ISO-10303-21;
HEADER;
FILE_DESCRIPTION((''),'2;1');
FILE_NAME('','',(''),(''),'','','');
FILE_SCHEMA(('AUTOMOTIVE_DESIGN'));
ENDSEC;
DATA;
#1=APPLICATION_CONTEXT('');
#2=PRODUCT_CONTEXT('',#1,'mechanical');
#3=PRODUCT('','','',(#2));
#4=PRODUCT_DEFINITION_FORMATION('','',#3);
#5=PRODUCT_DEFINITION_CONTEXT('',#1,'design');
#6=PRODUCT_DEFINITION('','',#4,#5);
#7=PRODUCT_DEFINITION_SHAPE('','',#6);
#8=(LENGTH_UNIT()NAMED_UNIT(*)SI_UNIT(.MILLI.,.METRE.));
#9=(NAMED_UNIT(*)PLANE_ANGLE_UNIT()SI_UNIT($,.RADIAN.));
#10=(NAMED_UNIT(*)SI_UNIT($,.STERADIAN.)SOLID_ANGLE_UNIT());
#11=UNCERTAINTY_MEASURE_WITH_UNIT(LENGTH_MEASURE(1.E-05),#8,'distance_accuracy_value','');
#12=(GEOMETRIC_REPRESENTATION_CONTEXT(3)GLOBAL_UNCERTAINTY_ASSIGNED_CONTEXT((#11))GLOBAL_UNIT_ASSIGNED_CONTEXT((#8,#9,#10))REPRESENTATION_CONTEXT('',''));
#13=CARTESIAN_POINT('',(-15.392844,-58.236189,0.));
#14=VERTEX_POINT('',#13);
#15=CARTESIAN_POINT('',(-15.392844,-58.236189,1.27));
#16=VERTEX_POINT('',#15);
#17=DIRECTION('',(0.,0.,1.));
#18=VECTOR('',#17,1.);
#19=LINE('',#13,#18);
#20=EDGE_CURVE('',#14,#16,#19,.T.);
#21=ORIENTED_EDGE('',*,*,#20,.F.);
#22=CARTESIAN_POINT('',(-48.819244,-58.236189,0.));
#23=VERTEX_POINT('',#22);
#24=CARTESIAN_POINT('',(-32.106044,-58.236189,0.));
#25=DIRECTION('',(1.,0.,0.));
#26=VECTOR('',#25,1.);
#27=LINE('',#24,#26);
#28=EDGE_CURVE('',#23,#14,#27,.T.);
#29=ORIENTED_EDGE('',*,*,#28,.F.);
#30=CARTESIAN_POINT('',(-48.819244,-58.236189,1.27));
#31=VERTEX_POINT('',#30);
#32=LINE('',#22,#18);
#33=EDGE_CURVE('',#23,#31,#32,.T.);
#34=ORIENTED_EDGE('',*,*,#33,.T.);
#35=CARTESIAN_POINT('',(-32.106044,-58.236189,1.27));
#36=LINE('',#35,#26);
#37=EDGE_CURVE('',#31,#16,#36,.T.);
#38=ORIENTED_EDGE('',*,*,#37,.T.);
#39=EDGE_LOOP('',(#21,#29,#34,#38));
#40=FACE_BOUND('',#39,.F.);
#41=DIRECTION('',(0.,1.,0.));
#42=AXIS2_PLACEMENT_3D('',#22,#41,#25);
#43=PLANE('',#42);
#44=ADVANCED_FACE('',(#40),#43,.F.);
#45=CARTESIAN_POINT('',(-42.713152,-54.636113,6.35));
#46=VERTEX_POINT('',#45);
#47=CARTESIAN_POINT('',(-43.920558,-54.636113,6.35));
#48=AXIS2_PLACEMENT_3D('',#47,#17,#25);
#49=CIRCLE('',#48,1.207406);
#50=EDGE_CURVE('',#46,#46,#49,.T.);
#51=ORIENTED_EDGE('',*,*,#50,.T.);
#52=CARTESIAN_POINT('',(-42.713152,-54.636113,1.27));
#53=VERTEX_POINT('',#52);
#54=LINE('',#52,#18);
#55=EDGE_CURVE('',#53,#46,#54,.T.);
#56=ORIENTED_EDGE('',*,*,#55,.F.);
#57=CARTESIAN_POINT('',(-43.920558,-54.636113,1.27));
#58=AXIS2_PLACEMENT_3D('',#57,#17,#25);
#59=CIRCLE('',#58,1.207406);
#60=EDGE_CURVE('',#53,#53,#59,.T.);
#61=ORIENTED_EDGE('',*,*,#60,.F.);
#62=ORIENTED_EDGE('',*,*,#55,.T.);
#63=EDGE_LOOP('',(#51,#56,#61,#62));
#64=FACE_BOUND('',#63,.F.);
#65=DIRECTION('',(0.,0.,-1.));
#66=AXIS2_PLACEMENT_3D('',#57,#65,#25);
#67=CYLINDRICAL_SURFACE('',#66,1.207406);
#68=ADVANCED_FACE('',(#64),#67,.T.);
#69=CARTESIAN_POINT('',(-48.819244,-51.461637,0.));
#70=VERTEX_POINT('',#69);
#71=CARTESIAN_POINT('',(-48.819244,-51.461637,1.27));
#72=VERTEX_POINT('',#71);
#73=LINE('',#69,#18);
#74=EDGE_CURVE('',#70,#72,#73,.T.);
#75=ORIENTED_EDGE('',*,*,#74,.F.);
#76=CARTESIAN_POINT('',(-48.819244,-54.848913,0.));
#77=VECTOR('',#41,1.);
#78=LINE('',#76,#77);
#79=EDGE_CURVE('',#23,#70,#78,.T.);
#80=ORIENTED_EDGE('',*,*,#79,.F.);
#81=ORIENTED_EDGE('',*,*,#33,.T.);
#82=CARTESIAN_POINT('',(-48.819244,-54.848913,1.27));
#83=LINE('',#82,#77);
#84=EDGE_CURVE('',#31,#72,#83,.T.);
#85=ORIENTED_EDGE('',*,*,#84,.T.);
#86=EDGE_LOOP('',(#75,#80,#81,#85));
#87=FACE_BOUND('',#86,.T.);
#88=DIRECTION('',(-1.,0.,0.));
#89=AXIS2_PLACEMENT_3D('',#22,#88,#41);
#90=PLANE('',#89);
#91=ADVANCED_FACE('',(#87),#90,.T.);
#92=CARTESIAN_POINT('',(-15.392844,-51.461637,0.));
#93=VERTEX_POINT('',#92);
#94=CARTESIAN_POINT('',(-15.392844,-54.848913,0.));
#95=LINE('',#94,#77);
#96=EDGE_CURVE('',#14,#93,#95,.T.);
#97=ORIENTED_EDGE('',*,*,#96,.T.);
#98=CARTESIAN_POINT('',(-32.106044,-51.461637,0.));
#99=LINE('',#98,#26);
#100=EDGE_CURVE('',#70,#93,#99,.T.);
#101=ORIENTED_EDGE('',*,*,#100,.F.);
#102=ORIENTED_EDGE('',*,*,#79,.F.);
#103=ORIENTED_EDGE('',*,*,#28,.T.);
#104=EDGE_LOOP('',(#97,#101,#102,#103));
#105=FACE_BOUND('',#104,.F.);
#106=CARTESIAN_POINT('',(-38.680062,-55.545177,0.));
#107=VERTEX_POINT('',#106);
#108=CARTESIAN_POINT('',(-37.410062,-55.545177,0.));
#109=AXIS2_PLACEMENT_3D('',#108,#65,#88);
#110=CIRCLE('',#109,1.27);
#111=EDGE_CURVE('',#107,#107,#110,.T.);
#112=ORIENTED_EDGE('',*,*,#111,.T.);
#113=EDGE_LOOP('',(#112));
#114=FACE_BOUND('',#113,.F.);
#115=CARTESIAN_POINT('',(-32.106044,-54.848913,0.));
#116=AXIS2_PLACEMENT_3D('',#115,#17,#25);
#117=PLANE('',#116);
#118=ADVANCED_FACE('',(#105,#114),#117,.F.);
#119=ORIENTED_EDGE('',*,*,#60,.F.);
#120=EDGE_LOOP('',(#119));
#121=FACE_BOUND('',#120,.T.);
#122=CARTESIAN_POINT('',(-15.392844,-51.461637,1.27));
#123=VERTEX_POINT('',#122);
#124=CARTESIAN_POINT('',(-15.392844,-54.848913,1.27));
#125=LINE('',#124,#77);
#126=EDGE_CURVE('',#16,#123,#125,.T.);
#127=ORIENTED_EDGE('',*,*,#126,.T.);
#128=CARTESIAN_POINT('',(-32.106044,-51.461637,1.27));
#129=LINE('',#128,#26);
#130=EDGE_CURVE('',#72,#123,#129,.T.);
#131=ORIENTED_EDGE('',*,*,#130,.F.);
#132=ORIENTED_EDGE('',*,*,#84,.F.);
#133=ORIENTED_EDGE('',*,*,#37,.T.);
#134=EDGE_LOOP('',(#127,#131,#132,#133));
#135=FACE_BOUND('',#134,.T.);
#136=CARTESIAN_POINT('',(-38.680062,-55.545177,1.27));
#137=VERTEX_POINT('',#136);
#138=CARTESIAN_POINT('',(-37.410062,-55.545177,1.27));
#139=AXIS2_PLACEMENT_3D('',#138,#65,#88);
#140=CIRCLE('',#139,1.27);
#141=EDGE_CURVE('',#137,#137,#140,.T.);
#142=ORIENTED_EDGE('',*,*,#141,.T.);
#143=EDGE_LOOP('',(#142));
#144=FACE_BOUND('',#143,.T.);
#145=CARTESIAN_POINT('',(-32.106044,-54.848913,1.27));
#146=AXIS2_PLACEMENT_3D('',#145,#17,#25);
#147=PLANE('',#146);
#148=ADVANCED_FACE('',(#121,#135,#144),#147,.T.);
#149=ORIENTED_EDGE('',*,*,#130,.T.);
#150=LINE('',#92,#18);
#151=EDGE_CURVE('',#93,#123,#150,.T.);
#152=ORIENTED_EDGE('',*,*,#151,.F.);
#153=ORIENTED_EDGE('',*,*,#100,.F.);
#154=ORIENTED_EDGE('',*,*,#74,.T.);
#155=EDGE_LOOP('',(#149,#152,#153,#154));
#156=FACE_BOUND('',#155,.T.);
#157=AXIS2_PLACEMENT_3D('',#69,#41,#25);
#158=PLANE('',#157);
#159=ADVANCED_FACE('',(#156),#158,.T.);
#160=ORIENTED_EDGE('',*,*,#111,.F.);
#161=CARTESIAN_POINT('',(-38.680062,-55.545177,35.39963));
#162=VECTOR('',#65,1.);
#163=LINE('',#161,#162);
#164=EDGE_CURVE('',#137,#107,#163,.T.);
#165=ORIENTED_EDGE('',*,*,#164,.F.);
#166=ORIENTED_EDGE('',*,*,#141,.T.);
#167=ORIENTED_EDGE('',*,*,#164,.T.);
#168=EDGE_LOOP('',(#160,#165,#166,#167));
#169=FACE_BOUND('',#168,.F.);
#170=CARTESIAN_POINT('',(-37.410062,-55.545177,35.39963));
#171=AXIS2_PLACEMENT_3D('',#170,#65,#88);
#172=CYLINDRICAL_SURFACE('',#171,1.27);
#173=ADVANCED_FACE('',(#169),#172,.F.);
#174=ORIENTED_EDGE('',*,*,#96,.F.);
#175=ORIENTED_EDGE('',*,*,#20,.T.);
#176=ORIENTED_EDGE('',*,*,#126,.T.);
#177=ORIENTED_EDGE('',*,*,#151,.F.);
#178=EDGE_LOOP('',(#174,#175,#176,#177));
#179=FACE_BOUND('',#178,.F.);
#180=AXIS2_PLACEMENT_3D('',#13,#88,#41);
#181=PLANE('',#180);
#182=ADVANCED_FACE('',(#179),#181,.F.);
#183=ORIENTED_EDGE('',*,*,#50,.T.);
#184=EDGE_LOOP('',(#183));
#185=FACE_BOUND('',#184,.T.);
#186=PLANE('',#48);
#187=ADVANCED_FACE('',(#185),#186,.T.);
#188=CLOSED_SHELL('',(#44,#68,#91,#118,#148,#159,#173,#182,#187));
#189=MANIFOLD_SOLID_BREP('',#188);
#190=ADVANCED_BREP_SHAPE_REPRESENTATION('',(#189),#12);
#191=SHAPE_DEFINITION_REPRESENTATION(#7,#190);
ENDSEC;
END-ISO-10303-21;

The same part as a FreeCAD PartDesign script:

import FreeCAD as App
import Part
import Sketcher
Q = App.Units.Quantity

doc = App.newDocument("Part")
body = doc.addObject("PartDesign::Body", "Body")

# Sketch on XY plane
sketch1 = body.newObject("Sketcher::SketchObject", "Sketch")
sketch1.AttachmentSupport = (doc.getObject("XY_Plane"), [""])
sketch1.MapMode = "FlatFace"
sketch1.addGeometry(Part.LineSegment(App.Vector(-49, -51, 0), App.Vector(-49, -58, 0)), False)
sketch1.addGeometry(Part.LineSegment(App.Vector(-49, -58, 0), App.Vector(-15, -58, 0)), False)
sketch1.addGeometry(Part.LineSegment(App.Vector(-15, -58, 0), App.Vector(-15, -51, 0)), False)
sketch1.addGeometry(Part.LineSegment(App.Vector(-15, -51, 0), App.Vector(-49, -51, 0)), False)
sketch1.addConstraint(Sketcher.Constraint("Coincident", 0, 2, 1, 1))
sketch1.addConstraint(Sketcher.Constraint("Coincident", 1, 2, 2, 1))
sketch1.addConstraint(Sketcher.Constraint("Coincident", 2, 2, 3, 1))
sketch1.addConstraint(Sketcher.Constraint("Coincident", 3, 2, 0, 1))
sketch1.addConstraint(Sketcher.Constraint("Vertical", 0))
sketch1.addConstraint(Sketcher.Constraint("Horizontal", 1))
sketch1.addConstraint(Sketcher.Constraint("Vertical", 2))
sketch1.addConstraint(Sketcher.Constraint("Horizontal", 3))
sketch1.addConstraint(Sketcher.Constraint("DistanceX", 1, 1, 1, 2, Q("1.316 in")))
sketch1.addConstraint(Sketcher.Constraint("DistanceY", 0, 2, 0, 1, Q("6.774552 mm")))
sketch1.addConstraint(Sketcher.Constraint("DistanceY", 0, 2, -1, 1, Q("58.236189 mm")))
sketch1.addConstraint(Sketcher.Constraint("DistanceX", 0, 2, -1, 1, Q("48.819244 mm")))
pad1 = body.newObject("PartDesign::Pad", "Pad")
pad1.Profile = sketch1
pad1.Length = Q("0.05 in")

# Sketch on XY plane
sketch2 = body.newObject("Sketcher::SketchObject", "Sketch001")
sketch2.AttachmentSupport = (doc.getObject("XY_Plane"), [""])
sketch2.MapMode = "FlatFace"
sketch2.AttachmentOffset = App.Placement(App.Vector(0, 0, 0.05 * 25.4), App.Rotation())
sketch2.addGeometry(Part.Circle(App.Vector(-37.4, -55.5, 0), App.Vector(0, 0, 1), 1.3), False)
sketch2.addConstraint(Sketcher.Constraint("Diameter", 0, Q("0.1 in")))
sketch2.addConstraint(Sketcher.Constraint("DistanceX", 0, 3, -1, 1, Q("37.410062 mm")))
sketch2.addConstraint(Sketcher.Constraint("DistanceY", 0, 3, -1, 1, Q("55.545177 mm")))
doc.recompute()
hole = body.newObject("PartDesign::Hole", "Hole")
hole.Profile = sketch2
hole.ThreadType = "None"
hole.Diameter = Q("0.1 in")
hole.DepthType = "ThroughAll"

# Sketch on XY plane
sketch3 = body.newObject("Sketcher::SketchObject", "Sketch002")
sketch3.AttachmentSupport = (doc.getObject("XY_Plane"), [""])
sketch3.MapMode = "FlatFace"
sketch3.AttachmentOffset = App.Placement(App.Vector(0, 0, 0.05 * 25.4), App.Rotation())
sketch3.addGeometry(Part.Circle(App.Vector(-43.9, -54.6, 0), App.Vector(0, 0, 1), 1.2), False)
sketch3.addConstraint(Sketcher.Constraint("Diameter", 0, Q("2.414812 mm")))
sketch3.addConstraint(Sketcher.Constraint("DistanceX", 0, 3, -1, 1, Q("43.920558 mm")))
sketch3.addConstraint(Sketcher.Constraint("DistanceY", 0, 3, -1, 1, Q("54.636113 mm")))
pad2 = body.newObject("PartDesign::Pad", "Pad001")
pad2.Profile = sketch3
pad2.Length = Q("0.2 in")
body2 = doc.addObject("PartDesign::Body", "Body001")

# Sketch on XY plane
sketch4 = body2.newObject("Sketcher::SketchObject", "Sketch003")
sketch4.AttachmentSupport = (doc.getObject("XY_Plane001"), [""])
sketch4.MapMode = "FlatFace"
sketch4.AttachmentOffset = App.Placement(App.Vector(0, 0, 0.05 * 25.4), App.Rotation())
sketch4.addGeometry(Part.Circle(App.Vector(-37.4, -55.5, 0), App.Vector(0, 0, 1), 1.1), False)
sketch4.addConstraint(Sketcher.Constraint("Diameter", 0, Q("2.233164 mm")))
sketch4.addConstraint(Sketcher.Constraint("DistanceX", 0, 3, -1, 1, Q("37.410062 mm")))
sketch4.addConstraint(Sketcher.Constraint("DistanceY", 0, 3, -1, 1, Q("55.545177 mm")))
pad3 = body2.newObject("PartDesign::Pad", "Pad002")
pad3.Profile = sketch4
pad3.Length = Q("0.227 in")
body2.Visibility = False

doc.recompute()
